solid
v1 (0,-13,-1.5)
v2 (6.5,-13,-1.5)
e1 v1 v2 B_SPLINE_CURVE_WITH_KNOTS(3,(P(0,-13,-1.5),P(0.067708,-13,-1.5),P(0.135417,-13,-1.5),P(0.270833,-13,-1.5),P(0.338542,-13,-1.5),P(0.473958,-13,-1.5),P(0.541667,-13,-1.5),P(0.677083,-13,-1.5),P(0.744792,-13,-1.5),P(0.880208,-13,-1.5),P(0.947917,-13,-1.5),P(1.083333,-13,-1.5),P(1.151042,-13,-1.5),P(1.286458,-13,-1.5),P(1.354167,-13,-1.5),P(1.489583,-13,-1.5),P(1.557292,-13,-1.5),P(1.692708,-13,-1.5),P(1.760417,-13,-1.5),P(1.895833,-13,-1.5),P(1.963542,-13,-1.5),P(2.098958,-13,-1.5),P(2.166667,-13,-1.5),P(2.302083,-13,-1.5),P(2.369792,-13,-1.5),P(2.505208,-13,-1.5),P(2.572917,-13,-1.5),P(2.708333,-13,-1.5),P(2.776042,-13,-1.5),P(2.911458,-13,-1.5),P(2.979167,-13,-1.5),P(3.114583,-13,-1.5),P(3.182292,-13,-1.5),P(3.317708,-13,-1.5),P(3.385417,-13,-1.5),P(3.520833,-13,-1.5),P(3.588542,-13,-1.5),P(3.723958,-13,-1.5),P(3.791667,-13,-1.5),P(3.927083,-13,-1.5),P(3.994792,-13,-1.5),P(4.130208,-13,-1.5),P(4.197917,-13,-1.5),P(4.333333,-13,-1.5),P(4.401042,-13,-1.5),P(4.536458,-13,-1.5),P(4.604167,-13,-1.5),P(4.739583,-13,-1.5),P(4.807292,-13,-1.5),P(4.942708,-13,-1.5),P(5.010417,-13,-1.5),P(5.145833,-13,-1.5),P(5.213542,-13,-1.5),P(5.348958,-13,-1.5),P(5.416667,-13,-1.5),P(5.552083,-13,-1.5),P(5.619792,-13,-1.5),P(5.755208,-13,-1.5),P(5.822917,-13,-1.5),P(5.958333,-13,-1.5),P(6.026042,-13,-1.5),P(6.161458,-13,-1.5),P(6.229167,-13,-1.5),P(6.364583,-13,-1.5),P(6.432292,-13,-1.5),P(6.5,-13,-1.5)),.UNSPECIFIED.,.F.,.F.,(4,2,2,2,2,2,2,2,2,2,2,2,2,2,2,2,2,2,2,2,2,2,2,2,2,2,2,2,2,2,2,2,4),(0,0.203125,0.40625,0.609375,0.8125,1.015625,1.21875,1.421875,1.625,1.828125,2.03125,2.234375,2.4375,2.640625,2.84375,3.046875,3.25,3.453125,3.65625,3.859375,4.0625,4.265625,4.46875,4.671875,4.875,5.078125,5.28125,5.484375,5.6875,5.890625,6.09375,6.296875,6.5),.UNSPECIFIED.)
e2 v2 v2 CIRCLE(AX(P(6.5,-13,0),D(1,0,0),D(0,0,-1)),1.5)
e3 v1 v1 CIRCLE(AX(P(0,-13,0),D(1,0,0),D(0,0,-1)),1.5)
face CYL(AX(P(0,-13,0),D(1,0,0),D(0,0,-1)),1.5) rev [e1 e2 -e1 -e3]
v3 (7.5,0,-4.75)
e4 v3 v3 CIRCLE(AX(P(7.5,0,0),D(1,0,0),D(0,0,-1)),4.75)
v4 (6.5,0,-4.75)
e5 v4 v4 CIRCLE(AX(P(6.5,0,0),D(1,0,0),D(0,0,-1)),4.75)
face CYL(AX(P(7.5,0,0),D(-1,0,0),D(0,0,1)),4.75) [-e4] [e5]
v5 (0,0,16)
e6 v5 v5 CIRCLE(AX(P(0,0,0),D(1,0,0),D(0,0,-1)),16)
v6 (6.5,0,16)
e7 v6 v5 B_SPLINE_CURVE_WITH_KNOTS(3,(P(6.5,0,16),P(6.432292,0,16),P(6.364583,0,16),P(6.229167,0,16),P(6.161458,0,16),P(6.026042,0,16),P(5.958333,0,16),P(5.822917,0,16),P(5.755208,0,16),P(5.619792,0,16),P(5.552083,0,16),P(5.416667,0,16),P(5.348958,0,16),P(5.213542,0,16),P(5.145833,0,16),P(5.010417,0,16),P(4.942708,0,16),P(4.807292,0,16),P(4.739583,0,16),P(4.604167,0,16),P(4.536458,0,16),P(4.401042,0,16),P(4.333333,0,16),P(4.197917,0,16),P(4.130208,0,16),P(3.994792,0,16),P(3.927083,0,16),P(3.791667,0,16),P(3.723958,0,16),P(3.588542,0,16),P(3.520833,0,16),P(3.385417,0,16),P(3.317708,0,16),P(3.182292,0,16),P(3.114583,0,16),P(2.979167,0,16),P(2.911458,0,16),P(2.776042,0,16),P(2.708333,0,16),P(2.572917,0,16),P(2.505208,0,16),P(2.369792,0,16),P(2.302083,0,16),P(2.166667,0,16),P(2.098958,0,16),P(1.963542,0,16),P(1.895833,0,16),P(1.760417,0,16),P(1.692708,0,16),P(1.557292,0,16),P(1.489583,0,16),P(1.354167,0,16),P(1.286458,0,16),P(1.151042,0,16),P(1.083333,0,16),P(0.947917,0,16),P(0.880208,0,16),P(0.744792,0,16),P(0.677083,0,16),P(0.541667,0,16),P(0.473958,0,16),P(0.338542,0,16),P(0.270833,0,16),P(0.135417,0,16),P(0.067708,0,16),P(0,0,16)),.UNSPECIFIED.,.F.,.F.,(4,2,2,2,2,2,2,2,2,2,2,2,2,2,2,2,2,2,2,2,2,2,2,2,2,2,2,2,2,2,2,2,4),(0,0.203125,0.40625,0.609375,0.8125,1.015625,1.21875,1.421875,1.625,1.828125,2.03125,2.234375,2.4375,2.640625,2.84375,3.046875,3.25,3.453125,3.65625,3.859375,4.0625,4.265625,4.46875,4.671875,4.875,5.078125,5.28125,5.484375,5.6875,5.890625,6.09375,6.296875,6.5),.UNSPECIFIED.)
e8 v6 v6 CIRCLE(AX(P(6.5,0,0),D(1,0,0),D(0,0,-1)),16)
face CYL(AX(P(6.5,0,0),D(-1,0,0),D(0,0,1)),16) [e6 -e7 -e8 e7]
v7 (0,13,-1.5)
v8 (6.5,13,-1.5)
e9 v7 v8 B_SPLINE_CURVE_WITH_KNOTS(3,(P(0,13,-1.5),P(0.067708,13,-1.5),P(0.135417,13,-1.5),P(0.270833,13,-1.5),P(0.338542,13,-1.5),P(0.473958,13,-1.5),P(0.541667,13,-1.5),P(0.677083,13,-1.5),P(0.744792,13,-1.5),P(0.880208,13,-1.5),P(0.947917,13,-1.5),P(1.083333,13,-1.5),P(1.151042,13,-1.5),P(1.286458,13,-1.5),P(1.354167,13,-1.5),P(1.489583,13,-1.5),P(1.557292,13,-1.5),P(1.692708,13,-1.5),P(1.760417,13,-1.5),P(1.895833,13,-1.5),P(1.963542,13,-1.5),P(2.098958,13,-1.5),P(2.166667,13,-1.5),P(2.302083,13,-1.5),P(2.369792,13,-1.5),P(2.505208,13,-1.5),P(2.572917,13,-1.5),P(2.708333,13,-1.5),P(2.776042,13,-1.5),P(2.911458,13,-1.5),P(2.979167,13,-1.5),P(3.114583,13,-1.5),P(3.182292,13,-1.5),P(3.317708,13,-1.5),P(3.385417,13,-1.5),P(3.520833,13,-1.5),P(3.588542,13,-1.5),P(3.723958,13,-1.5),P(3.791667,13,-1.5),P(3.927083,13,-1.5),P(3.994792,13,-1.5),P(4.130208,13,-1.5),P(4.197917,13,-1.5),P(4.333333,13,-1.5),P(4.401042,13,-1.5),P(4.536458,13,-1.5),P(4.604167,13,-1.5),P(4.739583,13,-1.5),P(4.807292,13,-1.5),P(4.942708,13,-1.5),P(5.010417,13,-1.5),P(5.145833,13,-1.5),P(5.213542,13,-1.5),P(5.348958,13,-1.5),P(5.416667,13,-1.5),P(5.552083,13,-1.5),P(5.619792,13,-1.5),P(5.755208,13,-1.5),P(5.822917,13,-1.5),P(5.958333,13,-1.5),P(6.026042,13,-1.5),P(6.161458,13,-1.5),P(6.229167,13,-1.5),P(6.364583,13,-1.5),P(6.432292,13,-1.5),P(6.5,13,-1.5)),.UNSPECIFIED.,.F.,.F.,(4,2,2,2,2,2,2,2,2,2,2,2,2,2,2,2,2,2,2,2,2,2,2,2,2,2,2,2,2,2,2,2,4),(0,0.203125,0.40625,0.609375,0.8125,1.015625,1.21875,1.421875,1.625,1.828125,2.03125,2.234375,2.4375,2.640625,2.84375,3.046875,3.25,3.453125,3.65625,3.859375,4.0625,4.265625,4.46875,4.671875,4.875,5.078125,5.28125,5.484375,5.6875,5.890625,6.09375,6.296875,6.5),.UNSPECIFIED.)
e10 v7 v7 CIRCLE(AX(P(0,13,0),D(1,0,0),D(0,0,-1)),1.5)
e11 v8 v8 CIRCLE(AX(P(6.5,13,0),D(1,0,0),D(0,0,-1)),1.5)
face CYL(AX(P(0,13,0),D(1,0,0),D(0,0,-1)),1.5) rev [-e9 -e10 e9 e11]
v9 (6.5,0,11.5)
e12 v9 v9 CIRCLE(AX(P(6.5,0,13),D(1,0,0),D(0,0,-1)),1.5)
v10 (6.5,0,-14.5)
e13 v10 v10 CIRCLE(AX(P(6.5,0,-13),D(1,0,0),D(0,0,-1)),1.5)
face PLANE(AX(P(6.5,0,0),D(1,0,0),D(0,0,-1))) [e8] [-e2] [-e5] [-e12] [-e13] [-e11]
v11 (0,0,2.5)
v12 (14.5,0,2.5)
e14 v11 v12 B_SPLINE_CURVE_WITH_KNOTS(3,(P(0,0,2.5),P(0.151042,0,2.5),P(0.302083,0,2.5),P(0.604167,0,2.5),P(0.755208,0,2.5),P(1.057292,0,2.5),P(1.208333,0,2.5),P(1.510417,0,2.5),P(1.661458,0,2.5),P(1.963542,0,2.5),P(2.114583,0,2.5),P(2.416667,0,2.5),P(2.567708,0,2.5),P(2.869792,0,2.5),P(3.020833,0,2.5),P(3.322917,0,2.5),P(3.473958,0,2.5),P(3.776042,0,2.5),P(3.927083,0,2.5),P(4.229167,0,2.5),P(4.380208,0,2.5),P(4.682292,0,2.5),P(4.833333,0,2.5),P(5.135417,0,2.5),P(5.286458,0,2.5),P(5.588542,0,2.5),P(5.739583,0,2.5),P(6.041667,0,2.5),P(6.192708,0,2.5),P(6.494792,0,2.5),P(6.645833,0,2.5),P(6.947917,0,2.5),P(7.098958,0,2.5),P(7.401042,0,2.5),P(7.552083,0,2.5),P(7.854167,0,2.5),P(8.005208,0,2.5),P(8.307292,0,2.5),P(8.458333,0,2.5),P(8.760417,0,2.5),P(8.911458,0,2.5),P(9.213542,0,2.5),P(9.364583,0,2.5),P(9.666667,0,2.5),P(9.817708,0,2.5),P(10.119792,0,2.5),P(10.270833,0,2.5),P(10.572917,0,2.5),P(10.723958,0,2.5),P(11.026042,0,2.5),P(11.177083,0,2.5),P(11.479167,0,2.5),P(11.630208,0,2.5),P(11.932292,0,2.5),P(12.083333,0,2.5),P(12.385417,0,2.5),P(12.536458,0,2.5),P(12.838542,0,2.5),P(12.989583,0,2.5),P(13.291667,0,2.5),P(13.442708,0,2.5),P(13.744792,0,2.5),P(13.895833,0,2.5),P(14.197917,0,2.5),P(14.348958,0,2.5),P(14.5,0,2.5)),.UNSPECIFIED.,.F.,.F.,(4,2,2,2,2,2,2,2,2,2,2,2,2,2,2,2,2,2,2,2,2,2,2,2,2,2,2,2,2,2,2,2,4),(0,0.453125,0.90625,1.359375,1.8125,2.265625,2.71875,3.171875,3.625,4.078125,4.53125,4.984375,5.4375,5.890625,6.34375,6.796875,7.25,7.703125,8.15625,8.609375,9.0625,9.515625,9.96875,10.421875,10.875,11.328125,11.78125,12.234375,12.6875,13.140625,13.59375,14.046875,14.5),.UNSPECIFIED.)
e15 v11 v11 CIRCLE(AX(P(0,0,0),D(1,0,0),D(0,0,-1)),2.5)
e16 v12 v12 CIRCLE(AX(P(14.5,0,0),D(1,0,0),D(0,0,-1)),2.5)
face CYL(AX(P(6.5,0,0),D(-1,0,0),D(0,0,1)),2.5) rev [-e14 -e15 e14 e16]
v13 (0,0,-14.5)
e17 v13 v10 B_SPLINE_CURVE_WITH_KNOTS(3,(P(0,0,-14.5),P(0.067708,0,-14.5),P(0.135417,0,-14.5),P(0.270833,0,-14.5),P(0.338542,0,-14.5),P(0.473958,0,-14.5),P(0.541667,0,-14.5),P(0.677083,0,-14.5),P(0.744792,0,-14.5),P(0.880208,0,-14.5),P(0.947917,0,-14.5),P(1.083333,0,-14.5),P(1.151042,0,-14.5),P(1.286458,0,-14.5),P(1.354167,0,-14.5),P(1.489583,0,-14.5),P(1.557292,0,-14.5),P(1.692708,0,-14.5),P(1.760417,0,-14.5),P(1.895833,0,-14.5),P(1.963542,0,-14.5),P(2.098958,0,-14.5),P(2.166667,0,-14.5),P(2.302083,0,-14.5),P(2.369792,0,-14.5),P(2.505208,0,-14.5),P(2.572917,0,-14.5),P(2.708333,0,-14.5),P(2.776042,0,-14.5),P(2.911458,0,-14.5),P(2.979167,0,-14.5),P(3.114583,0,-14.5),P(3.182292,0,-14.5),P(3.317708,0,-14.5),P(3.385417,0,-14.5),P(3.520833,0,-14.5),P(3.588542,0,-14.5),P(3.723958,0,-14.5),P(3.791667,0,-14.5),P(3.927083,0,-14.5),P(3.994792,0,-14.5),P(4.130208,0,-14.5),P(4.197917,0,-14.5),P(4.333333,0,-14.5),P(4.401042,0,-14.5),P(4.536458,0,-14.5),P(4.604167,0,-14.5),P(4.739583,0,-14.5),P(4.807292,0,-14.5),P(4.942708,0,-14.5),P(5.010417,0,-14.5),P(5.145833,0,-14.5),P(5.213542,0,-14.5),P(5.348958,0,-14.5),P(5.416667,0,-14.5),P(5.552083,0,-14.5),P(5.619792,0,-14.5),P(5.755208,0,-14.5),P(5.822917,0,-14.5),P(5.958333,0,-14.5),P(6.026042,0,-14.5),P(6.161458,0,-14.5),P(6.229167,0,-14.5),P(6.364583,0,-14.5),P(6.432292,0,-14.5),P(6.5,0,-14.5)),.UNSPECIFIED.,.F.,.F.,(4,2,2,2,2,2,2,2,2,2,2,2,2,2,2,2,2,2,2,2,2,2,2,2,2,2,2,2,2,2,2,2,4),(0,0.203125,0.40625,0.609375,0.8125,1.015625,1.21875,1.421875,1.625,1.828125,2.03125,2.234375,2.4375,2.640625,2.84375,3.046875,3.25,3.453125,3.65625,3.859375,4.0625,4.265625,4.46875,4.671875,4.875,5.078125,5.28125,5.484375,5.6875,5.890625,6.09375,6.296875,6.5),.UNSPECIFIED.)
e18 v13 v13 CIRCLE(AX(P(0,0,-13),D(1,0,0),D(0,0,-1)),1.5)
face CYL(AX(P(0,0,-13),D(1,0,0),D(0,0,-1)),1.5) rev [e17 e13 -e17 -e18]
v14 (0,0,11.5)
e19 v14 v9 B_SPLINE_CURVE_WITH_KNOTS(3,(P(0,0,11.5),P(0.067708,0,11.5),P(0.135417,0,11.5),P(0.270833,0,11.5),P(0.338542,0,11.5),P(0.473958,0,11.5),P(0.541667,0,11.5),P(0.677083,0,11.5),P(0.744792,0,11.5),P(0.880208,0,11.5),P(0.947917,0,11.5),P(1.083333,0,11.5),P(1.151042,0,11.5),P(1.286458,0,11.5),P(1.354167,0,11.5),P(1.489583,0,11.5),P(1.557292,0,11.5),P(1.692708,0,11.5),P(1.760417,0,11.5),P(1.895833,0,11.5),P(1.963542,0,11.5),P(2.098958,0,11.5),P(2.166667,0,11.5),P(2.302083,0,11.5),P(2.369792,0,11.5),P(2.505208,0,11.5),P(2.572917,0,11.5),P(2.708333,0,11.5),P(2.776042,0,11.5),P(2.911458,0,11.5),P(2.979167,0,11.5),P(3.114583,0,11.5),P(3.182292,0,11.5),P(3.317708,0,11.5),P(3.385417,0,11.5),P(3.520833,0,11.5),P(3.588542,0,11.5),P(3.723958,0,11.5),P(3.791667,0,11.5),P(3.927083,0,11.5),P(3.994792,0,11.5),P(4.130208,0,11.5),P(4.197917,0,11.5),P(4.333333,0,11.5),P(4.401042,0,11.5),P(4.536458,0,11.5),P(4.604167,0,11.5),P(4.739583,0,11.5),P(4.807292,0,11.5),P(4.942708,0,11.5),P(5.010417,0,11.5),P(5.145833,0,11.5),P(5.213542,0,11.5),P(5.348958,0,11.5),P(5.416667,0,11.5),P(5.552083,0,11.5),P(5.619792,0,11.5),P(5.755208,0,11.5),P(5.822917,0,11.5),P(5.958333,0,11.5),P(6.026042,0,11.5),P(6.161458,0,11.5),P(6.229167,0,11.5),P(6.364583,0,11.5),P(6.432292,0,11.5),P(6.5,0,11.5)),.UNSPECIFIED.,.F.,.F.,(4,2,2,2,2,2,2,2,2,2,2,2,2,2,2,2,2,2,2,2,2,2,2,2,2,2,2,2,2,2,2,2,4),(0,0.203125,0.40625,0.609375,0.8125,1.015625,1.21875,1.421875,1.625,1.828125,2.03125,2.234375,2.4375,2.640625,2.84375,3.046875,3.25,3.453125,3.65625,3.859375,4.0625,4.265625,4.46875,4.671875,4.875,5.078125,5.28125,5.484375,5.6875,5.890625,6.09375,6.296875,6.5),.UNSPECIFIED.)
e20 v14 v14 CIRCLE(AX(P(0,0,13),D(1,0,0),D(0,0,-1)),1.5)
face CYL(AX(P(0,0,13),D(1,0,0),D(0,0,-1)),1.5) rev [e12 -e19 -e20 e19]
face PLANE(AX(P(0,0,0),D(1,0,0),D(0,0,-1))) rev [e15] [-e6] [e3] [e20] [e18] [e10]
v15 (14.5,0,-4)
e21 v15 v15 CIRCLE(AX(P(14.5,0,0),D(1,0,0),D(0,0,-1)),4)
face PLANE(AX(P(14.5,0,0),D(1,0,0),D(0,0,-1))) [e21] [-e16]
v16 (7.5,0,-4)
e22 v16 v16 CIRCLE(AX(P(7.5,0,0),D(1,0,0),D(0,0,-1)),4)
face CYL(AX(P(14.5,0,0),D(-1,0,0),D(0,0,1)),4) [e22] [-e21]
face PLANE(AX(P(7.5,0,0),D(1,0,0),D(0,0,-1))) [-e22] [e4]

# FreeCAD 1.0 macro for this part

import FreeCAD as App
import Part
import Sketcher
from FreeCAD import Vector

doc = App.newDocument("Part")
body = doc.addObject("PartDesign::Body", "Body")

# Sketch on YZ plane
sketch1 = doc.addObject("Sketcher::SketchObject", "Sketch")
body.addObject(sketch1)
sketch1.AttachmentSupport = (doc.YZ_Plane, [""])
sketch1.MapMode = "FlatFace"
sketch1.addGeometry(Part.Circle(Vector(0, 0, 0), Vector(0, 0, 1), 16), False)
sketch1.addGeometry(Part.Circle(Vector(0, 0, 0), Vector(0, 0, 1), 2.5), False)
sketch1.addConstraint(Sketcher.Constraint("Coincident", 0, 3, -1, 1))
sketch1.addConstraint(Sketcher.Constraint("Coincident", 1, 3, -1, 1))
sketch1.addConstraint(Sketcher.Constraint("Diameter", 0, 32.0))
sketch1.addConstraint(Sketcher.Constraint("Diameter", 1, 5.0))
pad1 = doc.addObject("PartDesign::Pad", "Pad")
body.addObject(pad1)
pad1.Profile = sketch1
pad1.Length = 6.5

# Sketch on YZ plane
sketch2 = doc.addObject("Sketcher::SketchObject", "Sketch001")
body.addObject(sketch2)
sketch2.AttachmentSupport = (doc.YZ_Plane, [""])
sketch2.MapMode = "FlatFace"
sketch2.AttachmentOffset = App.Placement(Vector(0, 0, 6.5), App.Rotation())
sketch2.addGeometry(Part.Circle(Vector(13, 0, 0), Vector(0, 0, 1), 1.5), False)
sketch2.addGeometry(Part.Circle(Vector(0, -13, 0), Vector(0, 0, 1), 1.5), False)
sketch2.addGeometry(Part.Circle(Vector(-13, 0, 0), Vector(0, 0, 1), 1.5), False)
sketch2.addGeometry(Part.Circle(Vector(0, 13, 0), Vector(0, 0, 1), 1.5), False)
sketch2.addConstraint(Sketcher.Constraint("Equal", 0, 1))
sketch2.addConstraint(Sketcher.Constraint("Equal", 1, 2))
sketch2.addConstraint(Sketcher.Constraint("Equal", 2, 3))
sketch2.addConstraint(Sketcher.Constraint("Symmetric", 0, 3, 2, 3, -1, 1))
sketch2.addConstraint(Sketcher.Constraint("Symmetric", 1, 3, 3, 3, -1, 1))
sketch2.addConstraint(Sketcher.Constraint("PointOnObject", 0, 3, -1))
sketch2.addConstraint(Sketcher.Constraint("PointOnObject", 1, 3, -2))
sketch2.addConstraint(Sketcher.Constraint("Diameter", 0, 3.0))
sketch2.addConstraint(Sketcher.Constraint("DistanceX", -1, 1, 0, 3, 13.0))
sketch2.addConstraint(Sketcher.Constraint("DistanceY", 1, 3, -1, 1, 13.0))
pocket1 = doc.addObject("PartDesign::Pocket", "Pocket")
body.addObject(pocket1)
pocket1.Profile = sketch2
pocket1.Type = "ThroughAll"

# Sketch on YZ plane
sketch3 = doc.addObject("Sketcher::SketchObject", "Sketch002")
body.addObject(sketch3)
sketch3.AttachmentSupport = (doc.YZ_Plane, [""])
sketch3.MapMode = "FlatFace"
sketch3.AttachmentOffset = App.Placement(Vector(0, 0, 6.5), App.Rotation())
sketch3.addGeometry(Part.Circle(Vector(0, 0, 0), Vector(0, 0, 1), 4.75), False)
sketch3.addGeometry(Part.Circle(Vector(0, 0, 0), Vector(0, 0, 1), 2.5), False)
sketch3.addConstraint(Sketcher.Constraint("Coincident", 0, 3, -1, 1))
sketch3.addConstraint(Sketcher.Constraint("Coincident", 1, 3, -1, 1))
sketch3.addConstraint(Sketcher.Constraint("Diameter", 1, 5.0))
sketch3.addConstraint(Sketcher.Constraint("Diameter", 0, 9.5))
pad2 = doc.addObject("PartDesign::Pad", "Pad001")
body.addObject(pad2)
pad2.Profile = sketch3
pad2.Length = 1

# Sketch on YZ plane
sketch4 = doc.addObject("Sketcher::SketchObject", "Sketch003")
body.addObject(sketch4)
sketch4.AttachmentSupport = (doc.YZ_Plane, [""])
sketch4.MapMode = "FlatFace"
sketch4.AttachmentOffset = App.Placement(Vector(0, 0, 7.5), App.Rotation())
sketch4.addGeometry(Part.Circle(Vector(0, 0, 0), Vector(0, 0, 1), 4), False)
sketch4.addGeometry(Part.Circle(Vector(0, 0, 0), Vector(0, 0, 1), 2.5), False)
sketch4.addConstraint(Sketcher.Constraint("Coincident", 0, 3, -1, 1))
sketch4.addConstraint(Sketcher.Constraint("Coincident", 1, 3, -1, 1))
sketch4.addConstraint(Sketcher.Constraint("Diameter", 0, 8.0))
sketch4.addConstraint(Sketcher.Constraint("Diameter", 1, 5.0))
pad3 = doc.addObject("PartDesign::Pad", "Pad002")
body.addObject(pad3)
pad3.Profile = sketch4
pad3.Length = 7

doc.recompute()
